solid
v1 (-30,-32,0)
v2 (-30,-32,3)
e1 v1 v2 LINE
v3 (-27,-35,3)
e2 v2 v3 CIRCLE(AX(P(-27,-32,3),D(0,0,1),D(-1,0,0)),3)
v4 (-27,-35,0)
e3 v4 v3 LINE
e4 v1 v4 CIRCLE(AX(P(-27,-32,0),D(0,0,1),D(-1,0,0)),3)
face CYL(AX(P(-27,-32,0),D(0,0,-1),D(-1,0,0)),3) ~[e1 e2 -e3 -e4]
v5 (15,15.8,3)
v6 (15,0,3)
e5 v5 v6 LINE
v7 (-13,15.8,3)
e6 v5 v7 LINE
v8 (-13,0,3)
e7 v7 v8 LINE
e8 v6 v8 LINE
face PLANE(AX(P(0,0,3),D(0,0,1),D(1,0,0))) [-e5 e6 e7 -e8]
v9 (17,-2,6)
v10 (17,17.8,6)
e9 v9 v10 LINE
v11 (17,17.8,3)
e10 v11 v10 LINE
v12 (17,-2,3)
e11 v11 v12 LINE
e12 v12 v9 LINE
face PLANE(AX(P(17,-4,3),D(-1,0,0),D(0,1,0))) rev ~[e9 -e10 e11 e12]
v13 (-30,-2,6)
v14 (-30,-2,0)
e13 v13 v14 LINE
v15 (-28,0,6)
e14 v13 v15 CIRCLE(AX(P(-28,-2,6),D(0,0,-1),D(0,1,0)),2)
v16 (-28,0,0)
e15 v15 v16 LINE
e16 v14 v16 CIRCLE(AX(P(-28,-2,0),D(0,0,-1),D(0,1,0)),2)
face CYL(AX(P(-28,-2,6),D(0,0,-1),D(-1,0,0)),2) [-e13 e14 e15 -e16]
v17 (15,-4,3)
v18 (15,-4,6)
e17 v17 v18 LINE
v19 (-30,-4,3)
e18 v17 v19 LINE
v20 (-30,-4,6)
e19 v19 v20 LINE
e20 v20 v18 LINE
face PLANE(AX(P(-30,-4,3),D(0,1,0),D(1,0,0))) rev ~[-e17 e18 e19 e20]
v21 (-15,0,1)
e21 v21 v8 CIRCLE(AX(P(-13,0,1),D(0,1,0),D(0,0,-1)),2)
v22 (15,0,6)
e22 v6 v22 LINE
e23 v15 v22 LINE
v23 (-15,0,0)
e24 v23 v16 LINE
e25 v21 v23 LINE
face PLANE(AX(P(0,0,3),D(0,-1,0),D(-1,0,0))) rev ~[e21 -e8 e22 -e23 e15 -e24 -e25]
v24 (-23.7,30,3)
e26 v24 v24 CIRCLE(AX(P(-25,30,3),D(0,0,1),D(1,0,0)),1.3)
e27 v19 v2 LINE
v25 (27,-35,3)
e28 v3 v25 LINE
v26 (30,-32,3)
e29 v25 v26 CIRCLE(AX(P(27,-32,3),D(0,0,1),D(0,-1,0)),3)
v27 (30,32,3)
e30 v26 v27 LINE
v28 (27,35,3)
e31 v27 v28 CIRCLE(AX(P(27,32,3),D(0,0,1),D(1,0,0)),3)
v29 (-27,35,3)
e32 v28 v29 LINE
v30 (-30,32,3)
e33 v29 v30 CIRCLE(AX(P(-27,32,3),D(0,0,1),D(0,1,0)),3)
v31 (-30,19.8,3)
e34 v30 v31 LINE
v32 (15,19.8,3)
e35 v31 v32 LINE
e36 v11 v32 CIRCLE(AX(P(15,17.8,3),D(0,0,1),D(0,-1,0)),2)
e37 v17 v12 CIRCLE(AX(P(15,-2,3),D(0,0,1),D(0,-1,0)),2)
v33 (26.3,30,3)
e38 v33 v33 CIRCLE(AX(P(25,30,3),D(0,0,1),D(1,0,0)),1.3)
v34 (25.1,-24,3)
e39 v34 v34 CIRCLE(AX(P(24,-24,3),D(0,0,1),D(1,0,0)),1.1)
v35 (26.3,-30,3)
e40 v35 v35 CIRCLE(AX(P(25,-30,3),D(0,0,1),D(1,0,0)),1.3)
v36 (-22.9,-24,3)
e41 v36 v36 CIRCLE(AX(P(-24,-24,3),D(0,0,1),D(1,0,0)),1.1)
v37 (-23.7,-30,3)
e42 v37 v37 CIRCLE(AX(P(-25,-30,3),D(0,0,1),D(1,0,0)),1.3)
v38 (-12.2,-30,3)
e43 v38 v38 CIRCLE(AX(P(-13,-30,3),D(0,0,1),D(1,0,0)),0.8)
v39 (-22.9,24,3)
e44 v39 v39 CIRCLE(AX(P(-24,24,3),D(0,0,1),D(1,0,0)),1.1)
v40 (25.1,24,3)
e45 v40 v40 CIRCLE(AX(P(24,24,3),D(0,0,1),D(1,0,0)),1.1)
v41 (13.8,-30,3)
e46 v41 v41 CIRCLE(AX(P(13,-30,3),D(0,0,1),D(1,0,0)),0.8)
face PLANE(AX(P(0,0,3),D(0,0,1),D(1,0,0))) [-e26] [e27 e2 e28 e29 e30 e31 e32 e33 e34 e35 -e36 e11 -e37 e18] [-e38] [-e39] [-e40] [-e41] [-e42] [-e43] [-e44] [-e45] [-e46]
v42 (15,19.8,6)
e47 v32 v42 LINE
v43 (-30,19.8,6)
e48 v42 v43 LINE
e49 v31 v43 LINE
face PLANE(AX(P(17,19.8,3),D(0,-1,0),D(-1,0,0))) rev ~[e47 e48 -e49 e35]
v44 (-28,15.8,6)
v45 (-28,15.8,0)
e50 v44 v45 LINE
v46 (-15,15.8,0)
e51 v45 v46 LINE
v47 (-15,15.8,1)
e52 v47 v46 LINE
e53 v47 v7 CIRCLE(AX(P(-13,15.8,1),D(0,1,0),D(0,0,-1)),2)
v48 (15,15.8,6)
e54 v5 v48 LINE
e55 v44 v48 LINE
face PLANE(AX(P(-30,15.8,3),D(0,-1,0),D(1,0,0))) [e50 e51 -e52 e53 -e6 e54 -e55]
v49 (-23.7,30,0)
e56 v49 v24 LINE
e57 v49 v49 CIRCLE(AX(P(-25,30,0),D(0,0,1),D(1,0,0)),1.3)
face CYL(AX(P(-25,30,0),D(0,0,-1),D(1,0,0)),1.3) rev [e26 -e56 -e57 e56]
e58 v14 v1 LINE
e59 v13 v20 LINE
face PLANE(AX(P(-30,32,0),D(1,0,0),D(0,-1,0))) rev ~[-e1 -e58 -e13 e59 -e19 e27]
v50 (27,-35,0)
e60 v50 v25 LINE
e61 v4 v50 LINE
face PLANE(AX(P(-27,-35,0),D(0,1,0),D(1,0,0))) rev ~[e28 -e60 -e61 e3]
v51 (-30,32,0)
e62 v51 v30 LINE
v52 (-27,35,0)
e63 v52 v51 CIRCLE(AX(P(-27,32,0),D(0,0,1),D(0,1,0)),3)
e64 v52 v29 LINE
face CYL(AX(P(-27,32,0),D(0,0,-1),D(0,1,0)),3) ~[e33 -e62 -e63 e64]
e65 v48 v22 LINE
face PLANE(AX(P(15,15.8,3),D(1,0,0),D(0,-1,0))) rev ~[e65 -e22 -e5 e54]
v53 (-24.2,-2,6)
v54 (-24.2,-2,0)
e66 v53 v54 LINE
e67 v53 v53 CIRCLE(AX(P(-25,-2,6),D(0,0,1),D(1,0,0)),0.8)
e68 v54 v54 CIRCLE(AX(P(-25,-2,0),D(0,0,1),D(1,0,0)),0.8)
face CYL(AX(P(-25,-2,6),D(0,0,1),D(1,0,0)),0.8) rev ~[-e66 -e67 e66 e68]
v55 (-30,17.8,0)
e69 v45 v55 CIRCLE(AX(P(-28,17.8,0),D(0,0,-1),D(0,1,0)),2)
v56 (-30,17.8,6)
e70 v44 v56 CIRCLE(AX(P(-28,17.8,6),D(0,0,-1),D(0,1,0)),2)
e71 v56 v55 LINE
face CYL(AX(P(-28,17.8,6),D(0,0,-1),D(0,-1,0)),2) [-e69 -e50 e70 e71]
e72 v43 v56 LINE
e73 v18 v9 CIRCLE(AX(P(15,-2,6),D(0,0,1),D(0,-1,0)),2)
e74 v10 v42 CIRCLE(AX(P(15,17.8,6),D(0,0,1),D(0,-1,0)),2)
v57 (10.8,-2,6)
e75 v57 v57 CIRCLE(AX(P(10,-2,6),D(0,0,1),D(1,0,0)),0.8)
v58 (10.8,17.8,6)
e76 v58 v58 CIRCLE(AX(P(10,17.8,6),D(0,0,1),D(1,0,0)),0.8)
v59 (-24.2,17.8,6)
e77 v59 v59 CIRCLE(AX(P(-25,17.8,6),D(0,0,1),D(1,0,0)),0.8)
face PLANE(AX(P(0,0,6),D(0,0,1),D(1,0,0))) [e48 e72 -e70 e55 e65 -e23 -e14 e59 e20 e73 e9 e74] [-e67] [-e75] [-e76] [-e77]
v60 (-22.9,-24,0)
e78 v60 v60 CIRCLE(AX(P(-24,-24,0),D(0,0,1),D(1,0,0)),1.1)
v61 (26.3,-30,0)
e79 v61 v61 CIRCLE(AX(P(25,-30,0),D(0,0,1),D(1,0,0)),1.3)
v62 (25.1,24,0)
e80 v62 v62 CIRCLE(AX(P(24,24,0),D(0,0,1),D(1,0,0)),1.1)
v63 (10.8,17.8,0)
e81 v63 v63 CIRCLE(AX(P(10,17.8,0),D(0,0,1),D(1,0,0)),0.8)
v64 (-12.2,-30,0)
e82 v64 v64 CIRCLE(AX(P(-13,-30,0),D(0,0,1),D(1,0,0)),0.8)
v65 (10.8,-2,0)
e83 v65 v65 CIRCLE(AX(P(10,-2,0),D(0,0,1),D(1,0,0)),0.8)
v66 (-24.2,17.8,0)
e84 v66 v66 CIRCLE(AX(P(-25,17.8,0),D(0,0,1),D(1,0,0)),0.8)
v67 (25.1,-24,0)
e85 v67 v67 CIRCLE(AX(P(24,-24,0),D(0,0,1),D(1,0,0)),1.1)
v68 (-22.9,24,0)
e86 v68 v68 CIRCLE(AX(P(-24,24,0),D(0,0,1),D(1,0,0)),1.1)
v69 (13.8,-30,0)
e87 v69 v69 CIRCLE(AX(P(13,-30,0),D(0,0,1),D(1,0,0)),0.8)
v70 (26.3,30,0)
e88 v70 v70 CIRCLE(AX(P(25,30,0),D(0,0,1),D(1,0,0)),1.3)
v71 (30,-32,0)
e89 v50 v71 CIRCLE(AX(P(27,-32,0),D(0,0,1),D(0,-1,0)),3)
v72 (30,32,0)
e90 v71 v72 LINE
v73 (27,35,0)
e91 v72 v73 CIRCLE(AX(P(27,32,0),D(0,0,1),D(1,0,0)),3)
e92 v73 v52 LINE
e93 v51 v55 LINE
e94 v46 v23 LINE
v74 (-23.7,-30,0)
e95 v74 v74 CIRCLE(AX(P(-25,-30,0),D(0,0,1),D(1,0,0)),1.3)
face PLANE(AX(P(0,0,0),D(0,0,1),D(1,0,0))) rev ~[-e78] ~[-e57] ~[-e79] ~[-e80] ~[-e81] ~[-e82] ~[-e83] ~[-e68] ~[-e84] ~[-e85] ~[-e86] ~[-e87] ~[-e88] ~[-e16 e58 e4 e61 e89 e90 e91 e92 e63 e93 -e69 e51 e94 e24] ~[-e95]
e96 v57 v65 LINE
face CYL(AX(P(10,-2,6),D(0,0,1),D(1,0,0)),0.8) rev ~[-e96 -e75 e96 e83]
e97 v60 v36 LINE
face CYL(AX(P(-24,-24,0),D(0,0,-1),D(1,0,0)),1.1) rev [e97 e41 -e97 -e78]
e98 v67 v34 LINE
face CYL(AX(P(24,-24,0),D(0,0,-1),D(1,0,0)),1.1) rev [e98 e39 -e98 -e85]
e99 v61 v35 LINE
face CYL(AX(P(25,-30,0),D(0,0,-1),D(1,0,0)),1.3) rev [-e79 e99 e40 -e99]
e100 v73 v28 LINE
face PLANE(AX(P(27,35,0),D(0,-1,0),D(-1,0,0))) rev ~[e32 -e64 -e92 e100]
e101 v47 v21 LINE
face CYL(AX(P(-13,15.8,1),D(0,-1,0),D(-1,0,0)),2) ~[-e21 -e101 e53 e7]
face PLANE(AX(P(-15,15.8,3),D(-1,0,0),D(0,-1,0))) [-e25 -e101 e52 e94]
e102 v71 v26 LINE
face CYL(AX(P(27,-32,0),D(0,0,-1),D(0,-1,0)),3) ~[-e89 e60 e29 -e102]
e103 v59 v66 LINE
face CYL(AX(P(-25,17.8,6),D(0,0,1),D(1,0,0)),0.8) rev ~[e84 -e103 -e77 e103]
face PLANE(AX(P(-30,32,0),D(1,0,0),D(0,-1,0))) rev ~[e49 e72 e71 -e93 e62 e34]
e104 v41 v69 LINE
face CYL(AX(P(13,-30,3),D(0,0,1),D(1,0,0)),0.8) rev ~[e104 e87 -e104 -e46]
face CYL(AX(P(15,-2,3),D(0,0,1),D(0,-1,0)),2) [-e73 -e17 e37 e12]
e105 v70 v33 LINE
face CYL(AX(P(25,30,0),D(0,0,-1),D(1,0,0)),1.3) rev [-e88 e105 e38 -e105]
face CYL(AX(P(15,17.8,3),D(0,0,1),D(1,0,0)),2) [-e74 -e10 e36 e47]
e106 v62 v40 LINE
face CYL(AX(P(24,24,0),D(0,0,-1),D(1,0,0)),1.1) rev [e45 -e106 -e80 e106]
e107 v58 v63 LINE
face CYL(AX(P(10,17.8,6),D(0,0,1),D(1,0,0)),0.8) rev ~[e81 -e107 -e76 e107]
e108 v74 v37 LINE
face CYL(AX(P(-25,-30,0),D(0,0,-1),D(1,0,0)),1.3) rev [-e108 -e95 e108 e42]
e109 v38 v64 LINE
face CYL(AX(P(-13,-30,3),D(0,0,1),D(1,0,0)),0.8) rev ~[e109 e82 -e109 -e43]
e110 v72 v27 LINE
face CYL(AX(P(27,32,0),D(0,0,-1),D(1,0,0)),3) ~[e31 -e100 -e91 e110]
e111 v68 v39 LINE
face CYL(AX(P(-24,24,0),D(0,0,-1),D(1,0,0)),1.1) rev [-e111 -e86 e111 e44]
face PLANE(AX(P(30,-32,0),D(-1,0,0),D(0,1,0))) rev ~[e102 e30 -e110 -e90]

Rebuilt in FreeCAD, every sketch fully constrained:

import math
import FreeCAD as App
import Part
import Sketcher

V = App.Vector


def edges_at(feature, points):
    """Names of the edges that pass closest to the given points."""
    edges = feature.Shape.Edges
    near = lambda p: min(range(len(edges)), key=lambda i: edges[i].distToShape(Part.Vertex(*p))[0])
    return sorted({f"Edge{near(p) + 1}" for p in points})

doc = App.newDocument("Part")
body = doc.addObject("PartDesign::Body", "Body")

sketch1 = body.newObject("Sketcher::SketchObject", "Sketch")
sketch1.AttachmentSupport = (doc.getObject("XY_Plane"), [""])
sketch1.MapMode = "FlatFace"
sketch1.addGeometry([
    Part.ArcOfCircle(Part.Circle(V(-27, -32, 0), V(0, 0, 1), 3), math.radians(180), math.radians(270)),
    Part.LineSegment(V(-27, -35, 0), V(27, -35, 0)),
    Part.ArcOfCircle(Part.Circle(V(27, -32, 0), V(0, 0, 1), 3), math.radians(-90), math.radians(0)),
    Part.LineSegment(V(30, -32, 0), V(30, 32, 0)),
    Part.ArcOfCircle(Part.Circle(V(27, 32, 0), V(0, 0, 1), 3), math.radians(0), math.radians(90)),
    Part.LineSegment(V(27, 35, 0), V(-27, 35, 0)),
    Part.ArcOfCircle(Part.Circle(V(-27, 32, 0), V(0, 0, 1), 3), math.radians(90), math.radians(180)),
    Part.LineSegment(V(-30, 32, 0), V(-30, -32, 0)),
    Part.Circle(V(-24, -24, 0), V(0, 0, 1), 1.1),
    Part.Circle(V(24, -24, 0), V(0, 0, 1), 1.1),
    Part.Circle(V(-24, 24, 0), V(0, 0, 1), 1.1),
    Part.Circle(V(24, 24, 0), V(0, 0, 1), 1.1),
    Part.Circle(V(-25, -30, 0), V(0, 0, 1), 1.3),
    Part.Circle(V(25, -30, 0), V(0, 0, 1), 1.3),
    Part.Circle(V(-25, 30, 0), V(0, 0, 1), 1.3),
    Part.Circle(V(25, 30, 0), V(0, 0, 1), 1.3),
], False)
sketch1.addConstraint([
    Sketcher.Constraint("Tangent", 0, 2, 1, 1),
    Sketcher.Constraint("Tangent", 1, 2, 2, 1),
    Sketcher.Constraint("Tangent", 2, 2, 3, 1),
    Sketcher.Constraint("Tangent", 3, 2, 4, 1),
    Sketcher.Constraint("Tangent", 4, 2, 5, 1),
    Sketcher.Constraint("Tangent", 5, 2, 6, 1),
    Sketcher.Constraint("Tangent", 6, 2, 7, 1),
    Sketcher.Constraint("Tangent", 7, 2, 0, 1),
    Sketcher.Constraint("Horizontal", 1),
    Sketcher.Constraint("Vertical", 3),
    Sketcher.Constraint("Horizontal", 5),
    Sketcher.Constraint("Vertical", 7),
    Sketcher.Constraint("Equal", 0, 2),
    Sketcher.Constraint("Equal", 2, 4),
    Sketcher.Constraint("Equal", 4, 6),
    Sketcher.Constraint("Equal", 8, 9),
    Sketcher.Constraint("Equal", 9, 10),
    Sketcher.Constraint("Equal", 10, 11),
    Sketcher.Constraint("Equal", 12, 13),
    Sketcher.Constraint("Equal", 13, 14),
    Sketcher.Constraint("Equal", 14, 15),
    Sketcher.Constraint("Symmetric", 0, 3, 4, 3, -1, 1),
    Sketcher.Constraint("Symmetric", 9, 3, 10, 3, -1, 1),
    Sketcher.Constraint("Symmetric", 8, 3, 11, 3, -1, 1),
    Sketcher.Constraint("Symmetric", 13, 3, 14, 3, -1, 1),
    Sketcher.Constraint("Symmetric", 12, 3, 15, 3, -1, 1),
    Sketcher.Constraint("Symmetric", 8, 3, 9, 3, -2),
    Sketcher.Constraint("Symmetric", 12, 3, 13, 3, -2),
    Sketcher.Constraint("Radius", 0, 3.0),
    Sketcher.Constraint("Diameter", 8, 2.2),
    Sketcher.Constraint("Diameter", 12, 2.6),
    Sketcher.Constraint("DistanceX", 0, 3, 8, 3, 3.0),
    Sketcher.Constraint("DistanceX", 8, 3, 9, 3, 48.0),
    Sketcher.Constraint("DistanceY", 8, 3, 10, 3, 48.0),
    Sketcher.Constraint("DistanceX", 12, 3, 13, 3, 50.0),
    Sketcher.Constraint("DistanceY", 3, 1, 3, 2, 64.0),
    Sketcher.Constraint("DistanceY", 12, 3, -1, 1, 30.0),
])
pad1 = body.newObject("PartDesign::Pad", "Pad")
pad1.Profile = sketch1
pad1.Length = 3

sketch2 = body.newObject("Sketcher::SketchObject", "Sketch001")
sketch2.AttachmentSupport = (doc.getObject("XY_Plane"), [""])
sketch2.MapMode = "FlatFace"
sketch2.AttachmentOffset = App.Placement(V(0, 0, 3), App.Rotation())
sketch2.addGeometry([
    Part.LineSegment(V(-30, 0, 0), V(-30, -4, 0)),
    Part.LineSegment(V(-30, -4, 0), V(17, -4, 0)),
    Part.LineSegment(V(17, -4, 0), V(17, 19.8, 0)),
    Part.LineSegment(V(17, 19.8, 0), V(-30, 19.8, 0)),
    Part.LineSegment(V(-30, 19.8, 0), V(-30, 15.8, 0)),
    Part.LineSegment(V(-30, 15.8, 0), V(15, 15.8, 0)),
    Part.LineSegment(V(15, 15.8, 0), V(15, 0, 0)),
    Part.LineSegment(V(15, 0, 0), V(-30, 0, 0)),
], False)
sketch2.addConstraint([
    Sketcher.Constraint("Coincident", 0, 2, 1, 1),
    Sketcher.Constraint("Coincident", 1, 2, 2, 1),
    Sketcher.Constraint("Coincident", 2, 2, 3, 1),
    Sketcher.Constraint("Coincident", 3, 2, 4, 1),
    Sketcher.Constraint("Coincident", 4, 2, 5, 1),
    Sketcher.Constraint("Coincident", 5, 2, 6, 1),
    Sketcher.Constraint("Coincident", 6, 2, 7, 1),
    Sketcher.Constraint("Coincident", 7, 2, 0, 1),
    Sketcher.Constraint("Vertical", 0),
    Sketcher.Constraint("Horizontal", 1),
    Sketcher.Constraint("Vertical", 2),
    Sketcher.Constraint("Horizontal", 3),
    Sketcher.Constraint("Vertical", 4),
    Sketcher.Constraint("Horizontal", 5),
    Sketcher.Constraint("Vertical", 6),
    Sketcher.Constraint("Horizontal", 7),
    Sketcher.Constraint("PointOnObject", 6, 2, -1),
    Sketcher.Constraint("Vertical", 0, 2, 3, 2),
    Sketcher.Constraint("Equal", 0, 4),
    Sketcher.Constraint("DistanceX", 5, 1, 5, 2, 45.0),
    Sketcher.Constraint("DistanceY", 0, 2, 0, 1, 4.0),
    Sketcher.Constraint("DistanceY", 6, 2, 6, 1, 15.8),
    Sketcher.Constraint("DistanceX", -1, 1, 5, 2, 15.0),
    Sketcher.Constraint("DistanceX", 5, 2, 2, 2, 2.0),
])
pad2 = body.newObject("PartDesign::Pad", "Pad001")
pad2.Profile = sketch2
pad2.Length = 3

sketch3 = body.newObject("Sketcher::SketchObject", "Sketch002")
sketch3.AttachmentSupport = (doc.getObject("XY_Plane"), [""])
sketch3.MapMode = "FlatFace"
sketch3.AttachmentOffset = App.Placement(V(0, 0, 3), App.Rotation())
sketch3.addGeometry([
    Part.LineSegment(V(-30, 0, 0), V(-15, 0, 0)),
    Part.LineSegment(V(-15, 0, 0), V(-15, 15.8, 0)),
    Part.LineSegment(V(-15, 15.8, 0), V(-30, 15.8, 0)),
    Part.LineSegment(V(-30, 15.8, 0), V(-30, 0, 0)),
    Part.Circle(V(-13, -30, 0), V(0, 0, 1), 0.8),
    Part.Circle(V(13, -30, 0), V(0, 0, 1), 0.8),
], False)
sketch3.addConstraint([
    Sketcher.Constraint("Coincident", 0, 2, 1, 1),
    Sketcher.Constraint("Coincident", 1, 2, 2, 1),
    Sketcher.Constraint("Coincident", 2, 2, 3, 1),
    Sketcher.Constraint("Coincident", 3, 2, 0, 1),
    Sketcher.Constraint("Horizontal", 0),
    Sketcher.Constraint("Vertical", 1),
    Sketcher.Constraint("Horizontal", 2),
    Sketcher.Constraint("Vertical", 3),
    Sketcher.Constraint("Equal", 4, 5),
    Sketcher.Constraint("Symmetric", 4, 3, 5, 3, -2),
    Sketcher.Constraint("PointOnObject", 0, 2, -1),
    Sketcher.Constraint("Diameter", 4, 1.6),
    Sketcher.Constraint("DistanceX", 0, 1, 0, 2, 15.0),
    Sketcher.Constraint("DistanceY", 1, 1, 1, 2, 15.8),
    Sketcher.Constraint("DistanceX", 0, 2, -1, 1, 15.0),
    Sketcher.Constraint("DistanceX", 4, 3, 5, 3, 26.0),
    Sketcher.Constraint("DistanceY", 4, 3, -1, 1, 30.0),
])
pocket1 = body.newObject("PartDesign::Pocket", "Pocket")
pocket1.Profile = sketch3
pocket1.Length = 3
doc.recompute()

fillet = body.newObject("PartDesign::Fillet", "Fillet")
fillet.Base = (pocket1, edges_at(pocket1, [
    (-30, 15.8, 3),
    (-30, 0, 3),
    (-15, 7.9, 3),
    (17, 19.8, 4.5),
    (17, -4, 4.5),
]))
fillet.Radius = 2

sketch4 = body.newObject("Sketcher::SketchObject", "Sketch003")
sketch4.AttachmentSupport = (doc.getObject("XY_Plane"), [""])
sketch4.MapMode = "FlatFace"
sketch4.AttachmentOffset = App.Placement(V(0, 0, 6), App.Rotation())
sketch4.addGeometry([
    Part.Circle(V(-25, 17.8, 0), V(0, 0, 1), 0.8),
    Part.Circle(V(10, 17.8, 0), V(0, 0, 1), 0.8),
    Part.Circle(V(-25, -2, 0), V(0, 0, 1), 0.8),
    Part.Circle(V(10, -2, 0), V(0, 0, 1), 0.8),
], False)
sketch4.addConstraint([
    Sketcher.Constraint("Equal", 0, 1),
    Sketcher.Constraint("Equal", 1, 2),
    Sketcher.Constraint("Equal", 2, 3),
    Sketcher.Constraint("Horizontal", 0, 3, 1, 3),
    Sketcher.Constraint("Horizontal", 2, 3, 3, 3),
    Sketcher.Constraint("Vertical", 0, 3, 2, 3),
    Sketcher.Constraint("Vertical", 1, 3, 3, 3),
    Sketcher.Constraint("Diameter", 0, 1.6),
    Sketcher.Constraint("DistanceX", 0, 3, -1, 1, 25.0),
    Sketcher.Constraint("DistanceX", -1, 1, 1, 3, 10.0),
    Sketcher.Constraint("DistanceY", 2, 3, -1, 1, 2.0),
    Sketcher.Constraint("DistanceY", -1, 1, 0, 3, 17.8),
])
pocket2 = body.newObject("PartDesign::Pocket", "Pocket001")
pocket2.Profile = sketch4
pocket2.Length = 6

doc.recompute()
